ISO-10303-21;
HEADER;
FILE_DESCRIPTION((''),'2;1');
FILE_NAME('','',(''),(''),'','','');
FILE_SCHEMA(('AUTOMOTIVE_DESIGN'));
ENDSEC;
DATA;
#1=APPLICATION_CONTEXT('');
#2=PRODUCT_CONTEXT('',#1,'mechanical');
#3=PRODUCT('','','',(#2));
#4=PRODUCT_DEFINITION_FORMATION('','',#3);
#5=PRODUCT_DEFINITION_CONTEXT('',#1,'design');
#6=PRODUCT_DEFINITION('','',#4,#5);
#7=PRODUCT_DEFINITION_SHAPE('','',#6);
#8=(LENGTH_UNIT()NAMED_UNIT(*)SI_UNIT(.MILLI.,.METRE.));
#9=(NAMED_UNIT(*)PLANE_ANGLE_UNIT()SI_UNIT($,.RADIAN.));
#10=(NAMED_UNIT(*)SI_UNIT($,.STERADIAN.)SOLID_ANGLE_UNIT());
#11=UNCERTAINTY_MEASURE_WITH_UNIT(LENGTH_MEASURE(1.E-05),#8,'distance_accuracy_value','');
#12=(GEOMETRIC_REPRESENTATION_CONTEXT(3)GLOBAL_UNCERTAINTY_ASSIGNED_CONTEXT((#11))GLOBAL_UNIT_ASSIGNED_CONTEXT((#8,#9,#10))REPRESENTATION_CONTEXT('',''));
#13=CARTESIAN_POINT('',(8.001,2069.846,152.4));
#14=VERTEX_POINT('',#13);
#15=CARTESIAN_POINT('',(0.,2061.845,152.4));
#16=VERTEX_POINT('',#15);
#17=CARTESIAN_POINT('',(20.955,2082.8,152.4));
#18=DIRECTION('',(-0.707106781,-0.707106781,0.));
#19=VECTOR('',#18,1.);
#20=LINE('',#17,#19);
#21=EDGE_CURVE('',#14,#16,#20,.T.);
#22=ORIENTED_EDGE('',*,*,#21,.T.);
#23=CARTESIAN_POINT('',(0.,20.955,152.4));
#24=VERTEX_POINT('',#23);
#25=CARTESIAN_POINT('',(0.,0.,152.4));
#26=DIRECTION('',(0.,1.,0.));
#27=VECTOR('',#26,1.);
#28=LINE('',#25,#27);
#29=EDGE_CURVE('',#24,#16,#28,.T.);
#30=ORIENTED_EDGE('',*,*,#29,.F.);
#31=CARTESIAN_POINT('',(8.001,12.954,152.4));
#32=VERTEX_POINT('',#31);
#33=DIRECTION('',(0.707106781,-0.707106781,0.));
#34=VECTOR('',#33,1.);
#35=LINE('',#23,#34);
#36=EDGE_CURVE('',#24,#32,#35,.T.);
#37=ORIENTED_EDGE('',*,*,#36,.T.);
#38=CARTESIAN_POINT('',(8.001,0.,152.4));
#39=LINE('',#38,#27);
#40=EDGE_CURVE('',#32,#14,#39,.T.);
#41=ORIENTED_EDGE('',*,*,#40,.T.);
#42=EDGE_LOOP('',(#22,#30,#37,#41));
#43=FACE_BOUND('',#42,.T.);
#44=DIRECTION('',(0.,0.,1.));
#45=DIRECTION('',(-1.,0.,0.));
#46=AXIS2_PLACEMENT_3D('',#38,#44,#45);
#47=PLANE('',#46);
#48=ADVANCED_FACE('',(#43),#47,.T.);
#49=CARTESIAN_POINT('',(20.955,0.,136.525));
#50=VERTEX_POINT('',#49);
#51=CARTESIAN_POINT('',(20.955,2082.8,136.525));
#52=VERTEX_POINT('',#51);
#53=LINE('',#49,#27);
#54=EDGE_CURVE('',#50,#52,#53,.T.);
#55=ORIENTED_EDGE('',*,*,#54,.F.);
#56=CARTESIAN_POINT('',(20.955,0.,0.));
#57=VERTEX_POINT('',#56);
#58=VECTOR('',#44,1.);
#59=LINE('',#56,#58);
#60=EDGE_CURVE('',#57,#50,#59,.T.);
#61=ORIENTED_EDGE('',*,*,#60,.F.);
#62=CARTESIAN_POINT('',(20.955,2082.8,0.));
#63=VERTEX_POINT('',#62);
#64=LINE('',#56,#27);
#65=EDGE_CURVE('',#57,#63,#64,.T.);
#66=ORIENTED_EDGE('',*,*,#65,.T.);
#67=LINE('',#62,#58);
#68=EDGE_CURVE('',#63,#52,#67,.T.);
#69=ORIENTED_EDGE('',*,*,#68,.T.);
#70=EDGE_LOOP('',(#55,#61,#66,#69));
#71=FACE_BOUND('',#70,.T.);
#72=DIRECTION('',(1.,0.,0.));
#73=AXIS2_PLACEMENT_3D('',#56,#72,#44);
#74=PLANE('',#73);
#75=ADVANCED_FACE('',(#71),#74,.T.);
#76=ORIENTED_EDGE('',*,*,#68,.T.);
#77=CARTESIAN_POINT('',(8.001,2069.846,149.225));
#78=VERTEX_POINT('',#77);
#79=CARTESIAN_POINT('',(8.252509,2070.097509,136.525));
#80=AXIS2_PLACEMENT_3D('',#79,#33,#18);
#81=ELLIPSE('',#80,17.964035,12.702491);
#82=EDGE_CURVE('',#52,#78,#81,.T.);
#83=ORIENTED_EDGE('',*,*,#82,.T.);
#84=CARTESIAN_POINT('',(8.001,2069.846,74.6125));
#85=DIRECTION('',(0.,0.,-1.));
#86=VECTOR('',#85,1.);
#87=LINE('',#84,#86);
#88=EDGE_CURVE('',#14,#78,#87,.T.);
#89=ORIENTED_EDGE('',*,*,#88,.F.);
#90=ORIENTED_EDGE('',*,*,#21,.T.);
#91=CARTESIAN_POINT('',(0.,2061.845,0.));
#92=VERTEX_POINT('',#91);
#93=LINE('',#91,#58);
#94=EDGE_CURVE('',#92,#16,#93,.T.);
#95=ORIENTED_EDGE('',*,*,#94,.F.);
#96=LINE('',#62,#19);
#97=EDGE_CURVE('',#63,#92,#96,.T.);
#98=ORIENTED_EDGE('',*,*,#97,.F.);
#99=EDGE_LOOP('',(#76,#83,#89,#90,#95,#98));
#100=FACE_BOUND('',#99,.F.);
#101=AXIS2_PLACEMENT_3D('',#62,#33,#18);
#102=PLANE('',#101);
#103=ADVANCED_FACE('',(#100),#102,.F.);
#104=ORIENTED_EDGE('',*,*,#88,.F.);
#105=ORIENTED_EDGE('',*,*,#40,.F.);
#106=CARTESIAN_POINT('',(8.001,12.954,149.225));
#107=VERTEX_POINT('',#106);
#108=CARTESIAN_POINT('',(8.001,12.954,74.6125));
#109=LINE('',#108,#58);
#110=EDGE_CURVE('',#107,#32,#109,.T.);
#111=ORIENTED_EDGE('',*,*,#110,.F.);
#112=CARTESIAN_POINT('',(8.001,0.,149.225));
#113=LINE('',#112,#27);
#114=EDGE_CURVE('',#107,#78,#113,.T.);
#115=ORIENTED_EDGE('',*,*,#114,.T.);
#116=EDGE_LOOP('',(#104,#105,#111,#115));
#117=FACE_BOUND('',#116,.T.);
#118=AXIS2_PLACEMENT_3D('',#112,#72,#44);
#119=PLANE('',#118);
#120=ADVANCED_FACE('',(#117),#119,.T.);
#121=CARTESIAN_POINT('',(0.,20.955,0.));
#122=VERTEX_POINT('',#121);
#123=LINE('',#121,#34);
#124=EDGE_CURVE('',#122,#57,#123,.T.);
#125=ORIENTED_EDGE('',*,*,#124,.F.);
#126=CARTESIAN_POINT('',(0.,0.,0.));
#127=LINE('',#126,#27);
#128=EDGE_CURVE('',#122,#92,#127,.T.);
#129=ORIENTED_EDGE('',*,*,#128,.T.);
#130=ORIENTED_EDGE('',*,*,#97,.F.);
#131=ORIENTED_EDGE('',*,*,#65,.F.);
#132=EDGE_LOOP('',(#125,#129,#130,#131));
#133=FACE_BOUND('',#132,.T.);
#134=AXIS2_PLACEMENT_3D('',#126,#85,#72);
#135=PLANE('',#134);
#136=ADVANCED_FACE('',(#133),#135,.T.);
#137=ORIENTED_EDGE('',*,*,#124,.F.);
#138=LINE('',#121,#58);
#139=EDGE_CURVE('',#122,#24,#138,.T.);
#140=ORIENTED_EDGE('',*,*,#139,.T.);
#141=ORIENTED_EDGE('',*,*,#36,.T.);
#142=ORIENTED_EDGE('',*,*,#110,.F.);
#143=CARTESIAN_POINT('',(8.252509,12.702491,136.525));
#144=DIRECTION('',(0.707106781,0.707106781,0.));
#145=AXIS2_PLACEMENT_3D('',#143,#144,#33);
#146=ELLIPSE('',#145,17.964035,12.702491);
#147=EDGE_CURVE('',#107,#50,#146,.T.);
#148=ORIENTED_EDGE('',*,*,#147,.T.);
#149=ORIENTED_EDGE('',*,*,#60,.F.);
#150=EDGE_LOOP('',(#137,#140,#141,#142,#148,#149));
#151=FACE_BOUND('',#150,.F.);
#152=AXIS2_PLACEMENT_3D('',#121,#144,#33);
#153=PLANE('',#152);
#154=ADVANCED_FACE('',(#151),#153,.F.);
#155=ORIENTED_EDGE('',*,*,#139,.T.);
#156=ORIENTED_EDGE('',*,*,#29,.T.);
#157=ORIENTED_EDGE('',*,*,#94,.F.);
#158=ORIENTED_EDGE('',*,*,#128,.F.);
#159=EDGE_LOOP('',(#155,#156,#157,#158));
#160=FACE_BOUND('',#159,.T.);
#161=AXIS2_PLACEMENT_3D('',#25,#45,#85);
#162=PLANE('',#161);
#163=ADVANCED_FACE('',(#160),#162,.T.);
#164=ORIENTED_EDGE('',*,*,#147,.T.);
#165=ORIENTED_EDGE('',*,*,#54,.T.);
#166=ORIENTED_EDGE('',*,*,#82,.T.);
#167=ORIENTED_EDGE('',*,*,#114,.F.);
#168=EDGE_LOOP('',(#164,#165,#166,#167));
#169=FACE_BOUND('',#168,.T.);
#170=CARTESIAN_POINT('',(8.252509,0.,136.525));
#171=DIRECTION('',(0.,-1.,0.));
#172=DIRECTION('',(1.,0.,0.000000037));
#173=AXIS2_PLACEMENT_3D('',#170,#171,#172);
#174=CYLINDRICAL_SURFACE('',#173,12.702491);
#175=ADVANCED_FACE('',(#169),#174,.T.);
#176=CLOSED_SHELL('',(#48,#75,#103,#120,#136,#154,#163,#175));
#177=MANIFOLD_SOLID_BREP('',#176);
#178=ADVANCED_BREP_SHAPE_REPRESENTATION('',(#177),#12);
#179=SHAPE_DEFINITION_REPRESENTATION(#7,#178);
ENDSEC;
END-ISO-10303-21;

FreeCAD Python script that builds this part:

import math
import FreeCAD as App
import Part
import Sketcher
from FreeCAD import Vector
Q = App.Units.Quantity

doc = App.newDocument("Part")
body = doc.addObject("PartDesign::Body", "Body")

# Sketch on XZ plane
sketch1 = body.newObject("Sketcher::SketchObject", "Sketch")
sketch1.AttachmentSupport = (doc.getObject("XZ_Plane"), [""])
sketch1.MapMode = "FlatFace"
sketch1.addGeometry([
    Part.LineSegment(Vector(0, 152.4, 0), Vector(0, 0, 0)),  # 0
    Part.LineSegment(Vector(0, 0, 0), Vector(21, 0, 0)),  # 1
    Part.LineSegment(Vector(21, 0, 0), Vector(21, 136.5, 0)),  # 2
    Part.ArcOfCircle(Part.Circle(Vector(8.3, 136.5, 0), Vector(0, 0, 1), 12.7), math.radians(0), math.radians(91)),  # 3
    Part.LineSegment(Vector(8, 149.2, 0), Vector(8, 152.4, 0)),  # 4
    Part.LineSegment(Vector(8, 152.4, 0), Vector(0, 152.4, 0)),  # 5
], False)
sketch1.addConstraint([
    Sketcher.Constraint("Coincident", 0, 2, 1, 1),
    Sketcher.Constraint("Coincident", 1, 2, 2, 1),
    Sketcher.Constraint("Tangent", 2, 2, 3, 1),
    Sketcher.Constraint("Coincident", 3, 2, 4, 1),
    Sketcher.Constraint("Coincident", 4, 2, 5, 1),
    Sketcher.Constraint("Coincident", 5, 2, 0, 1),
    Sketcher.Constraint("Vertical", 0),
    Sketcher.Constraint("Horizontal", 1),
    Sketcher.Constraint("Vertical", 2),
    Sketcher.Constraint("Vertical", 4),
    Sketcher.Constraint("Horizontal", 5),
    Sketcher.Constraint("Coincident", 0, 2, -1, 1),
    Sketcher.Constraint("DistanceY", 0, 2, 0, 1, Q("6 in")),
    Sketcher.Constraint("DistanceY", 3, 3, 3, 2, Q("0.5 in")),
    Sketcher.Constraint("DistanceX", 1, 1, 1, 2, Q("0.825 in")),
    Sketcher.Constraint("DistanceX", 5, 2, 5, 1, Q("0.315 in")),
    Sketcher.Constraint("DistanceY", 2, 1, 2, 2, Q("5.375 in")),
])
pad1 = body.newObject("PartDesign::Pad", "Pad")
pad1.Profile = sketch1
pad1.Length = Q("82 in")
pad1.Reversed = True

# Sketch on XY plane
sketch2 = body.newObject("Sketcher::SketchObject", "Sketch001")
sketch2.AttachmentSupport = (doc.getObject("XY_Plane"), [""])
sketch2.MapMode = "FlatFace"
sketch2.addGeometry([
    Part.LineSegment(Vector(0, 21, 0), Vector(21, 0, 0)),
    Part.LineSegment(Vector(21, 0, 0), Vector(0, 0, 0)),
    Part.LineSegment(Vector(0, 0, 0), Vector(0, 21, 0)),
], False)
sketch2.addConstraint([
    Sketcher.Constraint("Coincident", 0, 2, 1, 1),
    Sketcher.Constraint("Coincident", 1, 2, 2, 1),
    Sketcher.Constraint("Coincident", 2, 2, 0, 1),
    Sketcher.Constraint("Horizontal", 1),
    Sketcher.Constraint("Vertical", 2),
    Sketcher.Constraint("Coincident", 1, 2, -1, 1),
    Sketcher.Constraint("Equal", 1, 2),
    Sketcher.Constraint("DistanceX", 1, 2, 1, 1, Q("0.825 in")),
])
pocket1 = body.newObject("PartDesign::Pocket", "Pocket")
pocket1.Profile = sketch2
pocket1.Length = Q("6 in")
pocket1.Reversed = True

# Sketch on XY plane
sketch3 = body.newObject("Sketcher::SketchObject", "Sketch002")
sketch3.AttachmentSupport = (doc.getObject("XY_Plane"), [""])
sketch3.MapMode = "FlatFace"
sketch3.addGeometry([
    Part.LineSegment(Vector(0, 2083, 0), Vector(21, 2083, 0)),
    Part.LineSegment(Vector(21, 2083, 0), Vector(0, 2062, 0)),
    Part.LineSegment(Vector(0, 2062, 0), Vector(0, 2083, 0)),
], False)
sketch3.addConstraint([
    Sketcher.Constraint("Coincident", 0, 2, 1, 1),
    Sketcher.Constraint("Coincident", 1, 2, 2, 1),
    Sketcher.Constraint("Coincident", 2, 2, 0, 1),
    Sketcher.Constraint("Horizontal", 0),
    Sketcher.Constraint("Vertical", 2),
    Sketcher.Constraint("PointOnObject", 1, 2, -2),
    Sketcher.Constraint("Equal", 0, 2),
    Sketcher.Constraint("DistanceY", -1, 1, 0, 2, Q("82 in")),
    Sketcher.Constraint("DistanceX", 0, 1, 0, 2, Q("0.825 in")),
])
pocket2 = body.newObject("PartDesign::Pocket", "Pocket001")
pocket2.Profile = sketch3
pocket2.Length = Q("6 in")
pocket2.Reversed = True

doc.recompute()
